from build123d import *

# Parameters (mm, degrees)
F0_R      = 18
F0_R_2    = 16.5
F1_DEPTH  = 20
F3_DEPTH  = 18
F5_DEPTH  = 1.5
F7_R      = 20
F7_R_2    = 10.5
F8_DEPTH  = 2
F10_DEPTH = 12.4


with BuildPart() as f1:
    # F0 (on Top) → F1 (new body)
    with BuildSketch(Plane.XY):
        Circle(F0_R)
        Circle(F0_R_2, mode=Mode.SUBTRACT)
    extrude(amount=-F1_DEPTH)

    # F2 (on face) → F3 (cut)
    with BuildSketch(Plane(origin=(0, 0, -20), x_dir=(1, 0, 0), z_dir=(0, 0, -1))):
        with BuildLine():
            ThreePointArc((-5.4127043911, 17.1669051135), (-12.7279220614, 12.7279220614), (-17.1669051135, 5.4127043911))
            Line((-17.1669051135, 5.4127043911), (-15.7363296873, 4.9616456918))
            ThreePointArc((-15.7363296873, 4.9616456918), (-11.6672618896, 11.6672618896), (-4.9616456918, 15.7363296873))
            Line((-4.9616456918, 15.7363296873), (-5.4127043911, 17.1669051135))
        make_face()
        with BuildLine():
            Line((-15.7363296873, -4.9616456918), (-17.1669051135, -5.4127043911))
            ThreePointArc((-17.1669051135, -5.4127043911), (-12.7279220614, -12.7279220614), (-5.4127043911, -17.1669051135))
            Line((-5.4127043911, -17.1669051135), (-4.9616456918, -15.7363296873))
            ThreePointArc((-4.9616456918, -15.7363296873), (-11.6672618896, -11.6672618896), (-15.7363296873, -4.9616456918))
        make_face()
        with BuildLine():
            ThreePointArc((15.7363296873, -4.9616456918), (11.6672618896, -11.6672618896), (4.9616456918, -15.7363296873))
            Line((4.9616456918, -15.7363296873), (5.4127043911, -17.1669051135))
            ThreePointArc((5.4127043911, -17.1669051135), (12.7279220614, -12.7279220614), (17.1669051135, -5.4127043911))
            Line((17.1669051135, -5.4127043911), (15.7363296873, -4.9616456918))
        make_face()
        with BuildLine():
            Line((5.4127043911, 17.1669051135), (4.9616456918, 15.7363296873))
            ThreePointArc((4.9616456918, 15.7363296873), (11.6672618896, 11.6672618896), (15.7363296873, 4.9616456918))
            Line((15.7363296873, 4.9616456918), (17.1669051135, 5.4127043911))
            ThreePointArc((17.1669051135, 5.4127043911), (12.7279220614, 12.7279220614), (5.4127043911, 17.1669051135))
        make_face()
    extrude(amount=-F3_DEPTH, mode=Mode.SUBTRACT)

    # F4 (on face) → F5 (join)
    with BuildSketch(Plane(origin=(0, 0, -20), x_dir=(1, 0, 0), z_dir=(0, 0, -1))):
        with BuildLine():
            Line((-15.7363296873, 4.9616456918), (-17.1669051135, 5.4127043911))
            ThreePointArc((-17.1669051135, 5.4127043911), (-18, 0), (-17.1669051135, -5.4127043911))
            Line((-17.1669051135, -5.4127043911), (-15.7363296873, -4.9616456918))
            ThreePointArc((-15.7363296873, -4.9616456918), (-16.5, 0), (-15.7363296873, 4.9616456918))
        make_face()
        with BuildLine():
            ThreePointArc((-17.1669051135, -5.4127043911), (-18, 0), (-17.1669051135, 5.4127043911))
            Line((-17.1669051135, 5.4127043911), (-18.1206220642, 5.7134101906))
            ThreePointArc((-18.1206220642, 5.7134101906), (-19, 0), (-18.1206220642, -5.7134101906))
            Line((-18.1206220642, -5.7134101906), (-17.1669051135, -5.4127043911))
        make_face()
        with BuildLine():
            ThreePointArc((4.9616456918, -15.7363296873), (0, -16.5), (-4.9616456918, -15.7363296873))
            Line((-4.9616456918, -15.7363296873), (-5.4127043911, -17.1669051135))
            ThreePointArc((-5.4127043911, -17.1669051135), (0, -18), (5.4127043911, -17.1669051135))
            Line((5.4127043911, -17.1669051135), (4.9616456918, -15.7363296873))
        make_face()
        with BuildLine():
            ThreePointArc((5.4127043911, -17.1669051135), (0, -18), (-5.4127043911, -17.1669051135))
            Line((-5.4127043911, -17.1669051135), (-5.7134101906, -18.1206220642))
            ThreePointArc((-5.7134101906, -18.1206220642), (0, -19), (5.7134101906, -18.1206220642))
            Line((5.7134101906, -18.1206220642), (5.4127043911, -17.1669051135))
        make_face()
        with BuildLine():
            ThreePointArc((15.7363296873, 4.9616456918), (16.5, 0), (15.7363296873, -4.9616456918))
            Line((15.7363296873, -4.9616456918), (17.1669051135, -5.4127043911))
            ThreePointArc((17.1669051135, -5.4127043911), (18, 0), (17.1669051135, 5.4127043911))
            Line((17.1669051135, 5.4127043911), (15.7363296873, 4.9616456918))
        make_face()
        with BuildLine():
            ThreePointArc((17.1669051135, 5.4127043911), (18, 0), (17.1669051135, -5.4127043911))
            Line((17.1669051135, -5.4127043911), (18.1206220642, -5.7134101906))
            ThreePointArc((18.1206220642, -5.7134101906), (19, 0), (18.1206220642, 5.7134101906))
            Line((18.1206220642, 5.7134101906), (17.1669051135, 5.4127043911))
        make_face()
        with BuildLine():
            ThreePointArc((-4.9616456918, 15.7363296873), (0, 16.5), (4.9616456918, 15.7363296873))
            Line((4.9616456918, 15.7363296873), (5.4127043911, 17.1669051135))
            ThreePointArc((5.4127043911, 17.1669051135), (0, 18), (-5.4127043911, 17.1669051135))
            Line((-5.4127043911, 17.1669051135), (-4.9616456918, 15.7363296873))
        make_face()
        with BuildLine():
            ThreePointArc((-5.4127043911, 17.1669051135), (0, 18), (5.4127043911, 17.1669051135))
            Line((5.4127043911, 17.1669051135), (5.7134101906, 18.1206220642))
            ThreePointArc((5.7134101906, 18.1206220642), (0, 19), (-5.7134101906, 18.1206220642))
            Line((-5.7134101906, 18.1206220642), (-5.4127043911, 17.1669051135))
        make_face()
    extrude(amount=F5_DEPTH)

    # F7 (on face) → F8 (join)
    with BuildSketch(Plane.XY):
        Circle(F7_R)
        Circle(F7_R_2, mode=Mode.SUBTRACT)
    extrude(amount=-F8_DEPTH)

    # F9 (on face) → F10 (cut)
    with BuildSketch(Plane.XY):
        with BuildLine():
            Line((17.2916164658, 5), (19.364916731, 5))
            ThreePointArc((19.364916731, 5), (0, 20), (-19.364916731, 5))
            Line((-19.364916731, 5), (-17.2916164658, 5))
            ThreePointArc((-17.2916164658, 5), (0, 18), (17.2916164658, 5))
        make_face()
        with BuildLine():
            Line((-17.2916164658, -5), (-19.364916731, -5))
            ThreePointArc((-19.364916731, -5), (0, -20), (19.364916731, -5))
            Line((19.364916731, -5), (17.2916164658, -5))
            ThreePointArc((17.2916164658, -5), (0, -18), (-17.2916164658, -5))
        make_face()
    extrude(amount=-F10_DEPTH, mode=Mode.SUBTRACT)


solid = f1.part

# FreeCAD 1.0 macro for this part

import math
import FreeCAD as App
import Part
import Sketcher
Q = App.Units.Quantity

doc = App.newDocument("Part")
body = doc.addObject("PartDesign::Body", "Body")

sketch1 = body.newObject("Sketcher::SketchObject", "Sketch")
sketch1.AttachmentSupport = (doc.getObject("XY_Plane"), [""])
sketch1.MapMode = "FlatFace"
sketch1.addGeometry([
    Part.Circle(App.Vector(0, 0, 0), App.Vector(0, 0, 1), 18),
    Part.Circle(App.Vector(0, 0, 0), App.Vector(0, 0, 1), 16),
], False)
sketch1.addConstraint([
    Sketcher.Constraint("Coincident", 0, 3, -1, 1),
    Sketcher.Constraint("Coincident", 1, 3, -1, 1),
    Sketcher.Constraint("Diameter", 0, Q("36 mm")),
    Sketcher.Constraint("Diameter", 1, Q("33 mm")),
])
pad1 = body.newObject("PartDesign::Pad", "Pad")
pad1.Profile = sketch1
pad1.Length = 20
pad1.Reversed = True

sketch2 = body.newObject("Sketcher::SketchObject", "Sketch001")
sketch2.AttachmentSupport = (doc.getObject("XY_Plane"), [""])
sketch2.MapMode = "FlatFace"
sketch2.AttachmentOffset = App.Placement(App.Vector(0, 0, -20), App.Rotation())
sketch2.addGeometry([
    Part.ArcOfCircle(Part.Circle(App.Vector(0, 0, 0), App.Vector(0, 0, 1), 18), math.radians(-162), math.radians(-108)),
    Part.LineSegment(App.Vector(-17.2, -5.4, 0), App.Vector(-15.7, -5, 0)),
    Part.ArcOfCircle(Part.Circle(App.Vector(0, 0, 0), App.Vector(0, 0, 1), 16.5), math.radians(-163), math.radians(-107)),
    Part.LineSegment(App.Vector(-5, -15.7, 0), App.Vector(-5.4, -17.2, 0)),
    Part.LineSegment(App.Vector(-15.7, 5, 0), App.Vector(-17.2, 5.4, 0)),
    Part.ArcOfCircle(Part.Circle(App.Vector(0, 0, 0), App.Vector(0, 0, 1), 18), math.radians(108), math.radians(162)),
    Part.LineSegment(App.Vector(-5.4, 17.2, 0), App.Vector(-5, 15.7, 0)),
    Part.ArcOfCircle(Part.Circle(App.Vector(0, 0, 0), App.Vector(0, 0, 1), 16.5), math.radians(107), math.radians(163)),
    Part.ArcOfCircle(Part.Circle(App.Vector(0, 0, 0), App.Vector(0, 0, 1), 16.5), math.radians(17), math.radians(73)),
    Part.LineSegment(App.Vector(5, 15.7, 0), App.Vector(5.4, 17.2, 0)),
    Part.ArcOfCircle(Part.Circle(App.Vector(0, 0, 0), App.Vector(0, 0, 1), 18), math.radians(18), math.radians(72)),
    Part.LineSegment(App.Vector(17.2, 5.4, 0), App.Vector(15.7, 5, 0)),
    Part.LineSegment(App.Vector(5.4, -17.2, 0), App.Vector(5, -15.7, 0)),
    Part.ArcOfCircle(Part.Circle(App.Vector(0, 0, 0), App.Vector(0, 0, 1), 16.5), math.radians(-73), math.radians(-17)),
    Part.LineSegment(App.Vector(15.7, -5, 0), App.Vector(17.2, -5.4, 0)),
    Part.ArcOfCircle(Part.Circle(App.Vector(0, 0, 0), App.Vector(0, 0, 1), 18), math.radians(-72), math.radians(-18)),
], False)
sketch2.addConstraint([
    Sketcher.Constraint("Coincident", 0, 1, 1, 1),
    Sketcher.Constraint("Coincident", 1, 2, 2, 1),
    Sketcher.Constraint("Coincident", 2, 2, 3, 1),
    Sketcher.Constraint("Coincident", 3, 2, 0, 2),
    Sketcher.Constraint("Coincident", 4, 2, 5, 2),
    Sketcher.Constraint("Coincident", 5, 1, 6, 1),
    Sketcher.Constraint("Coincident", 6, 2, 7, 1),
    Sketcher.Constraint("Coincident", 7, 2, 4, 1),
    Sketcher.Constraint("Coincident", 8, 2, 9, 1),
    Sketcher.Constraint("Coincident", 9, 2, 10, 2),
    Sketcher.Constraint("Coincident", 10, 1, 11, 1),
    Sketcher.Constraint("Coincident", 11, 2, 8, 1),
    Sketcher.Constraint("Coincident", 12, 2, 13, 1),
    Sketcher.Constraint("Coincident", 13, 2, 14, 1),
    Sketcher.Constraint("Coincident", 14, 2, 15, 2),
    Sketcher.Constraint("Coincident", 15, 1, 12, 1),
    Sketcher.Constraint("Coincident", 0, 3, -1, 1),
    Sketcher.Constraint("Coincident", 2, 3, -1, 1),
    Sketcher.Constraint("Coincident", 5, 3, -1, 1),
    Sketcher.Constraint("Coincident", 7, 3, -1, 1),
    Sketcher.Constraint("Coincident", 8, 3, -1, 1),
    Sketcher.Constraint("Coincident", 10, 3, -1, 1),
    Sketcher.Constraint("Coincident", 13, 3, -1, 1),
    Sketcher.Constraint("Coincident", 15, 3, -1, 1),
    Sketcher.Constraint("Equal", 0, 5),
    Sketcher.Constraint("Equal", 2, 7),
    Sketcher.Constraint("Equal", 7, 8),
    Sketcher.Constraint("Equal", 5, 10),
    Sketcher.Constraint("Equal", 8, 13),
    Sketcher.Constraint("Equal", 10, 15),
    Sketcher.Constraint("Perpendicular", 3, 4),
    Sketcher.Constraint("Perpendicular", 1, 6),
    Sketcher.Constraint("Perpendicular", 4, 9),
    Sketcher.Constraint("Perpendicular", 6, 11),
    Sketcher.Constraint("Perpendicular", 11, 12),
    Sketcher.Constraint("Perpendicular", 9, 14),
    Sketcher.Constraint("Horizontal", 6, 2, 8, 2),
    Sketcher.Constraint("Horizontal", 5, 1, 9, 2),
    Sketcher.Constraint("Horizontal", 4, 2, 10, 1),
    Sketcher.Constraint("Horizontal", 2, 2, 12, 2),
    Sketcher.Constraint("Horizontal", 1, 2, 13, 2),
    Sketcher.Constraint("Vertical", 0, 1, 4, 2),
    Sketcher.Constraint("Vertical", 3, 2, 5, 1),
    Sketcher.Constraint("Radius", 0, Q("18 mm")),
    Sketcher.Constraint("Radius", 2, Q("16.5 mm")),
    Sketcher.Constraint("Angle", 1, Q("17.5 deg")),
    Sketcher.Constraint("DistanceX", 0, 1, 3, 2, Q("11.754201 mm")),
    Sketcher.Constraint("DistanceY", 3, 2, 0, 1, Q("11.754201 mm")),
])
pocket1 = body.newObject("PartDesign::Pocket", "Pocket")
pocket1.Profile = sketch2
pocket1.Length = 18
pocket1.Reversed = True

sketch3 = body.newObject("Sketcher::SketchObject", "Sketch002")
sketch3.AttachmentSupport = (doc.getObject("XY_Plane"), [""])
sketch3.MapMode = "FlatFace"
sketch3.AttachmentOffset = App.Placement(App.Vector(0, 0, -20), App.Rotation())
sketch3.addGeometry([
    Part.LineSegment(App.Vector(-15.7, -5, 0), App.Vector(-17.2, -5.4, 0)),
    Part.LineSegment(App.Vector(-17.2, -5.4, 0), App.Vector(-18.1, -5.7, 0)),
    Part.ArcOfCircle(Part.Circle(App.Vector(0, 0, 0), App.Vector(0, 0, 1), 19), math.radians(162), math.radians(198)),
    Part.LineSegment(App.Vector(-18.1, 5.7, 0), App.Vector(-17.2, 5.4, 0)),
    Part.LineSegment(App.Vector(-17.2, 5.4, 0), App.Vector(-15.7, 5, 0)),
    Part.ArcOfCircle(Part.Circle(App.Vector(0, 0, 0), App.Vector(0, 0, 1), 16.5), math.radians(162), math.radians(198)),
    Part.ArcOfCircle(Part.Circle(App.Vector(0, 0, 0), App.Vector(0, 0, 1), 16.5), math.radians(72), math.radians(108)),
    Part.LineSegment(App.Vector(-5, 15.7, 0), App.Vector(-5.4, 17.2, 0)),
    Part.LineSegment(App.Vector(-5.4, 17.2, 0), App.Vector(-5.7, 18.1, 0)),
    Part.ArcOfCircle(Part.Circle(App.Vector(0, 0, 0), App.Vector(0, 0, 1), 19), math.radians(72), math.radians(108)),
    Part.LineSegment(App.Vector(5.7, 18.1, 0), App.Vector(5.4, 17.2, 0)),
    Part.LineSegment(App.Vector(5.4, 17.2, 0), App.Vector(5, 15.7, 0)),
    Part.ArcOfCircle(Part.Circle(App.Vector(0, 0, 0), App.Vector(0, 0, 1), 16.5), math.radians(-18), math.radians(18)),
    Part.LineSegment(App.Vector(15.7, 5, 0), App.Vector(17.2, 5.4, 0)),
    Part.LineSegment(App.Vector(17.2, 5.4, 0), App.Vector(18.1, 5.7, 0)),
    Part.ArcOfCircle(Part.Circle(App.Vector(0, 0, 0), App.Vector(0, 0, 1), 19), math.radians(-18), math.radians(18)),
    Part.LineSegment(App.Vector(18.1, -5.7, 0), App.Vector(17.2, -5.4, 0)),
    Part.LineSegment(App.Vector(17.2, -5.4, 0), App.Vector(15.7, -5, 0)),
    Part.ArcOfCircle(Part.Circle(App.Vector(0, 0, 0), App.Vector(0, 0, 1), 16.5), math.radians(-108), math.radians(-72)),
    Part.LineSegment(App.Vector(5, -15.7, 0), App.Vector(5.4, -17.2, 0)),
    Part.LineSegment(App.Vector(5.4, -17.2, 0), App.Vector(5.7, -18.1, 0)),
    Part.ArcOfCircle(Part.Circle(App.Vector(0, 0, 0), App.Vector(0, 0, 1), 19), math.radians(-108), math.radians(-72)),
    Part.LineSegment(App.Vector(-5.7, -18.1, 0), App.Vector(-5.4, -17.2, 0)),
    Part.LineSegment(App.Vector(-5.4, -17.2, 0), App.Vector(-5, -15.7, 0)),
], False)
sketch3.addConstraint([
    Sketcher.Constraint("Coincident", 0, 2, 1, 1),
    Sketcher.Constraint("Coincident", 1, 2, 2, 2),
    Sketcher.Constraint("Coincident", 2, 1, 3, 1),
    Sketcher.Constraint("Coincident", 3, 2, 4, 1),
    Sketcher.Constraint("Coincident", 4, 2, 5, 1),
    Sketcher.Constraint("Coincident", 5, 2, 0, 1),
    Sketcher.Constraint("Coincident", 6, 2, 7, 1),
    Sketcher.Constraint("Coincident", 7, 2, 8, 1),
    Sketcher.Constraint("Coincident", 8, 2, 9, 2),
    Sketcher.Constraint("Coincident", 9, 1, 10, 1),
    Sketcher.Constraint("Coincident", 10, 2, 11, 1),
    Sketcher.Constraint("Coincident", 11, 2, 6, 1),
    Sketcher.Constraint("Coincident", 12, 2, 13, 1),
    Sketcher.Constraint("Coincident", 13, 2, 14, 1),
    Sketcher.Constraint("Coincident", 14, 2, 15, 2),
    Sketcher.Constraint("Coincident", 15, 1, 16, 1),
    Sketcher.Constraint("Coincident", 16, 2, 17, 1),
    Sketcher.Constraint("Coincident", 17, 2, 12, 1),
    Sketcher.Constraint("Coincident", 18, 2, 19, 1),
    Sketcher.Constraint("Coincident", 19, 2, 20, 1),
    Sketcher.Constraint("Coincident", 20, 2, 21, 2),
    Sketcher.Constraint("Coincident", 21, 1, 22, 1),
    Sketcher.Constraint("Coincident", 22, 2, 23, 1),
    Sketcher.Constraint("Coincident", 23, 2, 18, 1),
    Sketcher.Constraint("Coincident", 2, 3, -1, 1),
    Sketcher.Constraint("Coincident", 5, 3, -1, 1),
    Sketcher.Constraint("Coincident", 6, 3, -1, 1),
    Sketcher.Constraint("Coincident", 9, 3, -1, 1),
    Sketcher.Constraint("Coincident", 12, 3, -1, 1),
    Sketcher.Constraint("Coincident", 15, 3, -1, 1),
    Sketcher.Constraint("Coincident", 18, 3, -1, 1),
    Sketcher.Constraint("Coincident", 21, 3, -1, 1),
    Sketcher.Constraint("Equal", 5, 6),
    Sketcher.Constraint("Equal", 2, 9),
    Sketcher.Constraint("Equal", 6, 12),
    Sketcher.Constraint("Equal", 9, 15),
    Sketcher.Constraint("Equal", 12, 18),
    Sketcher.Constraint("Equal", 15, 21),
    Sketcher.Constraint("Symmetric", 0, 2, 13, 2, -1, 1),
    Sketcher.Constraint("Symmetric", 3, 2, 16, 2, -1, 1),
    Sketcher.Constraint("Symmetric", 7, 2, 19, 2, -1, 1),
    Sketcher.Constraint("Symmetric", 10, 2, 22, 2, -1, 1),
    Sketcher.Constraint("Symmetric", 7, 2, 10, 2, -2),
    Sketcher.Constraint("Symmetric", 3, 2, 13, 2, -2),
    Sketcher.Constraint("Parallel", 0, 1),
    Sketcher.Constraint("Parallel", 3, 4),
    Sketcher.Constraint("Perpendicular", 1, 7),
    Sketcher.Constraint("Parallel", 7, 8),
    Sketcher.Constraint("Perpendicular", 4, 10),
    Sketcher.Constraint("Parallel", 10, 11),
    Sketcher.Constraint("Perpendicular", 8, 13),
    Sketcher.Constraint("Parallel", 13, 14),
    Sketcher.Constraint("Perpendicular", 11, 16),
    Sketcher.Constraint("Parallel", 16, 17),
    Sketcher.Constraint("Perpendicular", 14, 19),
    Sketcher.Constraint("Parallel", 19, 20),
    Sketcher.Constraint("Perpendicular", 17, 22),
    Sketcher.Constraint("Parallel", 22, 23),
    Sketcher.Constraint("Horizontal", 8, 2, 9, 1),
    Sketcher.Constraint("Equal", 4, 7),
    Sketcher.Constraint("Radius", 2, Q("19 mm")),
    Sketcher.Constraint("Radius", 5, Q("16.5 mm")),
    Sketcher.Constraint("Distance", 1, Q("1 mm")),
    Sketcher.Constraint("Angle", 0, Q("-162.5 deg")),
    Sketcher.Constraint("DistanceX", 3, 2, 7, 2, Q("11.754201 mm")),
    Sketcher.Constraint("DistanceY", 3, 2, 7, 2, Q("11.754201 mm")),
])
pad2 = body.newObject("PartDesign::Pad", "Pad001")
pad2.Profile = sketch3
pad2.Length = 1.5
pad2.Reversed = True

sketch4 = body.newObject("Sketcher::SketchObject", "Sketch003")
sketch4.AttachmentSupport = (doc.getObject("XY_Plane"), [""])
sketch4.MapMode = "FlatFace"
sketch4.addGeometry([
    Part.Circle(App.Vector(0, 0, 0), App.Vector(0, 0, 1), 20),
    Part.Circle(App.Vector(0, 0, 0), App.Vector(0, 0, 1), 10),
], False)
sketch4.addConstraint([
    Sketcher.Constraint("Coincident", 0, 3, -1, 1),
    Sketcher.Constraint("Coincident", 1, 3, -1, 1),
    Sketcher.Constraint("Diameter", 0, Q("40 mm")),
    Sketcher.Constraint("Diameter", 1, Q("21 mm")),
])
pad3 = body.newObject("PartDesign::Pad", "Pad002")
pad3.Profile = sketch4
pad3.Length = 2
pad3.Reversed = True

sketch5 = body.newObject("Sketcher::SketchObject", "Sketch004")
sketch5.AttachmentSupport = (doc.getObject("XY_Plane"), [""])
sketch5.MapMode = "FlatFace"
sketch5.addGeometry([
    Part.LineSegment(App.Vector(17.3, 5, 0), App.Vector(19.4, 5, 0)),
    Part.ArcOfCircle(Part.Circle(App.Vector(0, 0, 0), App.Vector(0, 0, 1), 20), math.radians(14), math.radians(166)),
    Part.LineSegment(App.Vector(-19.4, 5, 0), App.Vector(-17.3, 5, 0)),
    Part.ArcOfCircle(Part.Circle(App.Vector(0, 0, 0), App.Vector(0, 0, 1), 18), math.radians(16), math.radians(164)),
    Part.LineSegment(App.Vector(-17.3, -5, 0), App.Vector(-19.4, -5, 0)),
    Part.ArcOfCircle(Part.Circle(App.Vector(0, 0, 0), App.Vector(0, 0, 1), 20), math.radians(-166), math.radians(-14)),
    Part.LineSegment(App.Vector(19.4, -5, 0), App.Vector(17.3, -5, 0)),
    Part.ArcOfCircle(Part.Circle(App.Vector(0, 0, 0), App.Vector(0, 0, 1), 18), math.radians(-164), math.radians(-16)),
], False)
sketch5.addConstraint([
    Sketcher.Constraint("Coincident", 0, 2, 1, 1),
    Sketcher.Constraint("Coincident", 1, 2, 2, 1),
    Sketcher.Constraint("Coincident", 2, 2, 3, 2),
    Sketcher.Constraint("Coincident", 3, 1, 0, 1),
    Sketcher.Constraint("Coincident", 4, 2, 5, 1),
    Sketcher.Constraint("Coincident", 5, 2, 6, 1),
    Sketcher.Constraint("Coincident", 6, 2, 7, 2),
    Sketcher.Constraint("Coincident", 7, 1, 4, 1),
    Sketcher.Constraint("Horizontal", 0),
    Sketcher.Constraint("Horizontal", 2),
    Sketcher.Constraint("Horizontal", 4),
    Sketcher.Constraint("Horizontal", 6),
    Sketcher.Constraint("Coincident", 1, 3, -1, 1),
    Sketcher.Constraint("Coincident", 3, 3, -1, 1),
    Sketcher.Constraint("Coincident", 5, 3, -1, 1),
    Sketcher.Constraint("Coincident", 7, 3, -1, 1),
    Sketcher.Constraint("Equal", 1, 5),
    Sketcher.Constraint("Equal", 3, 7),
    Sketcher.Constraint("Horizontal", 0, 2, 1, 2),
    Sketcher.Constraint("Horizontal", 4, 2, 5, 2),
    Sketcher.Constraint("Vertical", 1, 2, 4, 2),
    Sketcher.Constraint("Radius", 1, Q("20 mm")),
    Sketcher.Constraint("Radius", 3, Q("18 mm")),
    Sketcher.Constraint("DistanceY", -1, 1, 0, 2, Q("5 mm")),
])
pocket2 = body.newObject("PartDesign::Pocket", "Pocket001")
pocket2.Profile = sketch5
pocket2.Length = 12.4

doc.recompute()
